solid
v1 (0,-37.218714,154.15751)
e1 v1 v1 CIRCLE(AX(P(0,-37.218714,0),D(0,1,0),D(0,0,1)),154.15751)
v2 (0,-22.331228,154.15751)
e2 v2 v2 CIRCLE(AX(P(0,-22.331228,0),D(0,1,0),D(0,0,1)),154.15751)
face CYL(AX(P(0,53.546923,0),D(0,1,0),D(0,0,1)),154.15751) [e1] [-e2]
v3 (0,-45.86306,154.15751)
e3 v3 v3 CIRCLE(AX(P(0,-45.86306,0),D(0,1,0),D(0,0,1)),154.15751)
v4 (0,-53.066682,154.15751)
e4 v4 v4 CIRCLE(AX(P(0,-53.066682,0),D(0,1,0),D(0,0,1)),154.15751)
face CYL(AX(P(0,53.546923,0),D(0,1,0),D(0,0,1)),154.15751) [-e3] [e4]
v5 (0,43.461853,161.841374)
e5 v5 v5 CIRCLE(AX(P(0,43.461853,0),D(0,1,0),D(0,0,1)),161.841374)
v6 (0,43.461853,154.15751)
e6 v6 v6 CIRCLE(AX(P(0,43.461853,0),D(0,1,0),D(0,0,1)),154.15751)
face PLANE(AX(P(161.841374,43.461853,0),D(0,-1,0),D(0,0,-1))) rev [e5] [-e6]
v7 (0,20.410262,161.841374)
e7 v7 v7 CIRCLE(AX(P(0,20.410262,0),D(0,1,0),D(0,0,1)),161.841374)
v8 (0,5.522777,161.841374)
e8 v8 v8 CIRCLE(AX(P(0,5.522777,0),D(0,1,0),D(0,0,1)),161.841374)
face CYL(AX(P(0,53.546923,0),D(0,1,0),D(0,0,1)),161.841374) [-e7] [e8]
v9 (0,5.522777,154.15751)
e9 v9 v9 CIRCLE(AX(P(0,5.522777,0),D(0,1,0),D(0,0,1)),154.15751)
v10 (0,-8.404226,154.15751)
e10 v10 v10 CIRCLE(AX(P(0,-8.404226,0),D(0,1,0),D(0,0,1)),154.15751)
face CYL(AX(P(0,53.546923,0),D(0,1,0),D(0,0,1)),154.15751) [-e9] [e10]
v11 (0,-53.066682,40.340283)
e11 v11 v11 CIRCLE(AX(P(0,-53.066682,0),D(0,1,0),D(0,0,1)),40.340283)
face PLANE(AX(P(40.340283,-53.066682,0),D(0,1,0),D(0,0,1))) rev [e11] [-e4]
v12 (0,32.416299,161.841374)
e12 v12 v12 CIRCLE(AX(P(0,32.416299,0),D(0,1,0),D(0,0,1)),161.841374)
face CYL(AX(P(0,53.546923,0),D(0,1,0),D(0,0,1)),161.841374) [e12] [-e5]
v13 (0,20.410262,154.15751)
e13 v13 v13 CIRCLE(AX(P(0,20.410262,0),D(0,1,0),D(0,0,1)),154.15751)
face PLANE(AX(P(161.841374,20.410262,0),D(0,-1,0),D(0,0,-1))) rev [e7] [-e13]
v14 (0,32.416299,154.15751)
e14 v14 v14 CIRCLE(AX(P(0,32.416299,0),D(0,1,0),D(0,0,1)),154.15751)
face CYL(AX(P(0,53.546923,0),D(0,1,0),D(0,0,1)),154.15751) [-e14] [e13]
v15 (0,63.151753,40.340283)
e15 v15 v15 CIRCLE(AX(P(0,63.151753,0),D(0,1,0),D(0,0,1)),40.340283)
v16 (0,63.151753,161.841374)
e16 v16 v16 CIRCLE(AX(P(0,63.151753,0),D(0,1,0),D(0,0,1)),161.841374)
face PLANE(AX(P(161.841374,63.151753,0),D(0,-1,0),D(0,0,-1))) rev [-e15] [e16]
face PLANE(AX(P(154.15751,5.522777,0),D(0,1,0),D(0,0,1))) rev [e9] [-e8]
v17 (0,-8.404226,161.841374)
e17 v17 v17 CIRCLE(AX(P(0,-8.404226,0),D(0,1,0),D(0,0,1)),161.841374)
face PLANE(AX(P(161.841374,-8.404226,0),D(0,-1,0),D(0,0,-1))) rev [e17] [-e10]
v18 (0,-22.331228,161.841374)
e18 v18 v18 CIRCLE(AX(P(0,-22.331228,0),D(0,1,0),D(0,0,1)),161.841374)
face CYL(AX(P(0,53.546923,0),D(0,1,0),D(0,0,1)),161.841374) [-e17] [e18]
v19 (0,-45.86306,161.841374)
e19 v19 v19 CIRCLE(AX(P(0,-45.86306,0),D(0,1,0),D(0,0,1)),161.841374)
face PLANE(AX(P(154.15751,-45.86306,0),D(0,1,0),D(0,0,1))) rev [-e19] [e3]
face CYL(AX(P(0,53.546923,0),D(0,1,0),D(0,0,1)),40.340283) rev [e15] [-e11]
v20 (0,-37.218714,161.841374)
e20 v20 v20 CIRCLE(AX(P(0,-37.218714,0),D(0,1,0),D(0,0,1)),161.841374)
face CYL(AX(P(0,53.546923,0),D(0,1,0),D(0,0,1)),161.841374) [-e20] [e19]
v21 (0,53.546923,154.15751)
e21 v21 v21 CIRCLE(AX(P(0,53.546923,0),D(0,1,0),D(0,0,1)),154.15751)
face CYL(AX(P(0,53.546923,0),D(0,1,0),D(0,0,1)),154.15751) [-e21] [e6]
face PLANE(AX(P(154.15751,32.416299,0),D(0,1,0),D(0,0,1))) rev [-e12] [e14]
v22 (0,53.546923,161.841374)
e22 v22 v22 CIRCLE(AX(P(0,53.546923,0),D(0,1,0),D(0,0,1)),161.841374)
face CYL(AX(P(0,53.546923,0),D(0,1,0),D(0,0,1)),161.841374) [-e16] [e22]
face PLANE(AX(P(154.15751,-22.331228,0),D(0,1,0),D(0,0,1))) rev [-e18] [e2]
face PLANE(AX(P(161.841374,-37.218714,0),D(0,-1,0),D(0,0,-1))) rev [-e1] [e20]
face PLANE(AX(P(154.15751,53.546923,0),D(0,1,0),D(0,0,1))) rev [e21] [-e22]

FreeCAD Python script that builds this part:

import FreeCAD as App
import Part
import Sketcher

V = App.Vector
Q = App.Units.Quantity

doc = App.newDocument("Part")
params = doc.addObject("Spreadsheet::Sheet", "Params")
for row, (alias, value) in enumerate([
    ("revolution_angle", "360 deg"),
], start=1):
    params.set(f"A{row}", alias)
    params.set(f"B{row}", "=" + value)
    params.setAlias(f"B{row}", alias)

body = doc.addObject("PartDesign::Body", "Body")

# Sketch on XY plane
sketch1 = body.newObject("Sketcher::SketchObject", "Sketch")
sketch1.AttachmentSupport = (doc.getObject("XY_Plane"), [""])
sketch1.MapMode = "FlatFace"
sketch1.addGeometry([
    Part.LineSegment(V(40, -53, 0), V(154, -53, 0)),  # 0
    Part.LineSegment(V(154, -53, 0), V(154, -46, 0)),  # 1
    Part.LineSegment(V(154, -46, 0), V(162, -46, 0)),  # 2
    Part.LineSegment(V(162, -46, 0), V(162, -37, 0)),  # 3
    Part.LineSegment(V(162, -37, 0), V(154, -37, 0)),  # 4
    Part.LineSegment(V(154, -37, 0), V(154, -22, 0)),  # 5
    Part.LineSegment(V(154, -22, 0), V(162, -22, 0)),  # 6
    Part.LineSegment(V(162, -22, 0), V(162, -8, 0)),  # 7
    Part.LineSegment(V(162, -8, 0), V(154, -8, 0)),  # 8
    Part.LineSegment(V(154, -8, 0), V(154, 6, 0)),  # 9
    Part.LineSegment(V(154, 6, 0), V(162, 6, 0)),  # 10
    Part.LineSegment(V(162, 6, 0), V(162, 20, 0)),  # 11
    Part.LineSegment(V(162, 20, 0), V(154, 20, 0)),  # 12
    Part.LineSegment(V(154, 20, 0), V(154, 32, 0)),  # 13
    Part.LineSegment(V(154, 32, 0), V(162, 32, 0)),  # 14
    Part.LineSegment(V(162, 32, 0), V(162, 43, 0)),  # 15
    Part.LineSegment(V(162, 43, 0), V(154, 43, 0)),  # 16
    Part.LineSegment(V(154, 43, 0), V(154, 54, 0)),  # 17
    Part.LineSegment(V(154, 54, 0), V(162, 54, 0)),  # 18
    Part.LineSegment(V(162, 54, 0), V(162, 63, 0)),  # 19
    Part.LineSegment(V(162, 63, 0), V(40, 63, 0)),  # 20
    Part.LineSegment(V(40, 63, 0), V(40, -53, 0)),  # 21
], False)
sketch1.addConstraint([
    Sketcher.Constraint("Coincident", 0, 2, 1, 1),
    Sketcher.Constraint("Coincident", 1, 2, 2, 1),
    Sketcher.Constraint("Coincident", 2, 2, 3, 1),
    Sketcher.Constraint("Coincident", 3, 2, 4, 1),
    Sketcher.Constraint("Coincident", 4, 2, 5, 1),
    Sketcher.Constraint("Coincident", 5, 2, 6, 1),
    Sketcher.Constraint("Coincident", 6, 2, 7, 1),
    Sketcher.Constraint("Coincident", 7, 2, 8, 1),
    Sketcher.Constraint("Coincident", 8, 2, 9, 1),
    Sketcher.Constraint("Coincident", 9, 2, 10, 1),
    Sketcher.Constraint("Coincident", 10, 2, 11, 1),
    Sketcher.Constraint("Coincident", 11, 2, 12, 1),
    Sketcher.Constraint("Coincident", 12, 2, 13, 1),
    Sketcher.Constraint("Coincident", 13, 2, 14, 1),
    Sketcher.Constraint("Coincident", 14, 2, 15, 1),
    Sketcher.Constraint("Coincident", 15, 2, 16, 1),
    Sketcher.Constraint("Coincident", 16, 2, 17, 1),
    Sketcher.Constraint("Coincident", 17, 2, 18, 1),
    Sketcher.Constraint("Coincident", 18, 2, 19, 1),
    Sketcher.Constraint("Coincident", 19, 2, 20, 1),
    Sketcher.Constraint("Coincident", 20, 2, 21, 1),
    Sketcher.Constraint("Coincident", 21, 2, 0, 1),
    Sketcher.Constraint("Horizontal", 0),
    Sketcher.Constraint("Vertical", 1),
    Sketcher.Constraint("Horizontal", 2),
    Sketcher.Constraint("Vertical", 3),
    Sketcher.Constraint("Horizontal", 4),
    Sketcher.Constraint("Vertical", 5),
    Sketcher.Constraint("Horizontal", 6),
    Sketcher.Constraint("Vertical", 7),
    Sketcher.Constraint("Horizontal", 8),
    Sketcher.Constraint("Vertical", 9),
    Sketcher.Constraint("Horizontal", 10),
    Sketcher.Constraint("Vertical", 11),
    Sketcher.Constraint("Horizontal", 12),
    Sketcher.Constraint("Vertical", 13),
    Sketcher.Constraint("Horizontal", 14),
    Sketcher.Constraint("Vertical", 15),
    Sketcher.Constraint("Horizontal", 16),
    Sketcher.Constraint("Vertical", 17),
    Sketcher.Constraint("Horizontal", 18),
    Sketcher.Constraint("Vertical", 19),
    Sketcher.Constraint("Horizontal", 20),
    Sketcher.Constraint("Vertical", 21),
    Sketcher.Constraint("Vertical", 1, 2, 4, 2),
    Sketcher.Constraint("Vertical", 3, 2, 6, 2),
    Sketcher.Constraint("Vertical", 5, 2, 8, 2),
    Sketcher.Constraint("Vertical", 7, 2, 10, 2),
    Sketcher.Constraint("Vertical", 9, 2, 12, 2),
    Sketcher.Constraint("Vertical", 11, 2, 14, 2),
    Sketcher.Constraint("Vertical", 13, 2, 16, 2),
    Sketcher.Constraint("Vertical", 15, 2, 18, 2),
    Sketcher.Constraint("Equal", 7, 9),
    Sketcher.Constraint("Equal", 5, 11),
    Sketcher.Constraint("DistanceX", 20, 2, 20, 1, Q("121.501091 mm")),
    Sketcher.Constraint("DistanceY", 1, 1, 1, 2, Q("7.203622 mm")),
    Sketcher.Constraint("DistanceY", 17, 1, 17, 2, Q("10.085071 mm")),
    Sketcher.Constraint("DistanceY", 19, 1, 19, 2, Q("9.604829 mm")),
    Sketcher.Constraint("DistanceY", -1, 1, 13, 2, Q("32.416299 mm")),
    Sketcher.Constraint("DistanceX", 0, 1, 0, 2, Q("113.817227 mm")),
    Sketcher.Constraint("DistanceY", 3, 1, 3, 2, Q("8.644346 mm")),
    Sketcher.Constraint("DistanceY", 5, 1, 5, 2, Q("14.887485 mm")),
    Sketcher.Constraint("DistanceY", 7, 1, 7, 2, Q("13.927002 mm")),
    Sketcher.Constraint("DistanceY", 13, 1, 13, 2, Q("12.006037 mm")),
    Sketcher.Constraint("DistanceY", 15, 1, 15, 2, Q("11.045554 mm")),
    Sketcher.Constraint("DistanceX", -1, 1, 0, 2, Q("154.15751 mm")),
])
revolution = body.newObject("PartDesign::Revolution", "Revolution")
revolution.Profile = sketch1
revolution.ReferenceAxis = (sketch1, ["V_Axis"])
revolution.setExpression("Angle", "Params.revolution_angle")

doc.recompute()
